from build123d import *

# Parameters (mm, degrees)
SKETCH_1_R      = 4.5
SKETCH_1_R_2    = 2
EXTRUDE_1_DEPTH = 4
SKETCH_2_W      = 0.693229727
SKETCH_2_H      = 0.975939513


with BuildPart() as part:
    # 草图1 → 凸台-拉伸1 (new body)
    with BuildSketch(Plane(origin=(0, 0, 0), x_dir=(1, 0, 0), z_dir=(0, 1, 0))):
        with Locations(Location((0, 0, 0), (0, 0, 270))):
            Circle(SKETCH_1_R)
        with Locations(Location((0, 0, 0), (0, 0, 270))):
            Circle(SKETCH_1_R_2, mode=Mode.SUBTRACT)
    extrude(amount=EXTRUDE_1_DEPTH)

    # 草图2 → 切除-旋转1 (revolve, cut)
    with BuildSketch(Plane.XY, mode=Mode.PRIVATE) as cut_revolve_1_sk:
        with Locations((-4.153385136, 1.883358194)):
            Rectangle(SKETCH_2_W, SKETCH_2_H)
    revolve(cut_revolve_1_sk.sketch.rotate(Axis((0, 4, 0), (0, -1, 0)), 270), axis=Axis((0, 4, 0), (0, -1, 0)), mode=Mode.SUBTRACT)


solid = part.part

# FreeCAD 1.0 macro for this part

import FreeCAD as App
import Part
import Sketcher

V = App.Vector


def add_polygon(sketch, points):
    """Adds a closed chain of lines whose ends are joined by coincident constraints."""
    first, n = sketch.GeometryCount, len(points)
    for a, b in zip(points, points[1:] + points[:1]):
        sketch.addGeometry(Part.LineSegment(App.Vector(*a, 0), App.Vector(*b, 0)), False)
    for i in range(n):
        sketch.addConstraint(Sketcher.Constraint("Coincident", first + i, 2, first + (i + 1) % n, 1))

doc = App.newDocument("Part")
params = doc.addObject("Spreadsheet::Sheet", "Params")
for row, (alias, value) in enumerate([
    ("sketch1_diameter", "9 mm"),
    ("sketch1_diameter2", "4 mm"),
    ("pad1_length", "4 mm"),
    ("groove_angle", "360 deg"),
], start=1):
    params.set(f"A{row}", alias)
    params.set(f"B{row}", "=" + value)
    params.setAlias(f"B{row}", alias)

body = doc.addObject("PartDesign::Body", "Body")

sketch1 = body.newObject("Sketcher::SketchObject", "Sketch")
sketch1.AttachmentSupport = (doc.getObject("XZ_Plane"), [""])
sketch1.MapMode = "FlatFace"
sketch1.addGeometry([
    Part.Circle(V(0, 0, 0), V(0, 0, 1), 4.5),
    Part.Circle(V(0, 0, 0), V(0, 0, 1), 2),
], False)
sketch1.addConstraint([
    Sketcher.Constraint("Coincident", 0, 3, -1, 1),
    Sketcher.Constraint("Coincident", 1, 3, -1, 1),
    Sketcher.Constraint("Diameter", 0, 9.0),
    Sketcher.Constraint("Diameter", 1, 4.0),
])
sketch1.setExpression("Constraints[2]", "Params.sketch1_diameter")
sketch1.setExpression("Constraints[3]", "Params.sketch1_diameter2")
pad1 = body.newObject("PartDesign::Pad", "Pad")
pad1.Profile = sketch1
pad1.setExpression("Length", "Params.pad1_length")
pad1.Reversed = True

sketch2 = body.newObject("Sketcher::SketchObject", "Sketch001")
sketch2.AttachmentSupport = (doc.getObject("XY_Plane"), [""])
sketch2.MapMode = "FlatFace"
add_polygon(sketch2, [(-4.5, 2.4), (-4.5, 1.4), (-3.8, 1.4), (-3.8, 2.4)])
sketch2.addConstraint([
    Sketcher.Constraint("Vertical", 0),
    Sketcher.Constraint("Horizontal", 1),
    Sketcher.Constraint("Vertical", 2),
    Sketcher.Constraint("Horizontal", 3),
    Sketcher.Constraint("DistanceX", 0, 2, -1, 1, 4.5),
    Sketcher.Constraint("DistanceX", 1, 1, 1, 2, 0.69323),
    Sketcher.Constraint("DistanceY", 0, 2, 0, 1, 0.97594),
    Sketcher.Constraint("DistanceY", -1, 1, 0, 2, 1.395388),
])
groove = body.newObject("PartDesign::Groove", "Groove")
groove.Profile = sketch2
groove.ReferenceAxis = (sketch2, ["V_Axis"])
groove.setExpression("Angle", "Params.groove_angle")

doc.recompute()
